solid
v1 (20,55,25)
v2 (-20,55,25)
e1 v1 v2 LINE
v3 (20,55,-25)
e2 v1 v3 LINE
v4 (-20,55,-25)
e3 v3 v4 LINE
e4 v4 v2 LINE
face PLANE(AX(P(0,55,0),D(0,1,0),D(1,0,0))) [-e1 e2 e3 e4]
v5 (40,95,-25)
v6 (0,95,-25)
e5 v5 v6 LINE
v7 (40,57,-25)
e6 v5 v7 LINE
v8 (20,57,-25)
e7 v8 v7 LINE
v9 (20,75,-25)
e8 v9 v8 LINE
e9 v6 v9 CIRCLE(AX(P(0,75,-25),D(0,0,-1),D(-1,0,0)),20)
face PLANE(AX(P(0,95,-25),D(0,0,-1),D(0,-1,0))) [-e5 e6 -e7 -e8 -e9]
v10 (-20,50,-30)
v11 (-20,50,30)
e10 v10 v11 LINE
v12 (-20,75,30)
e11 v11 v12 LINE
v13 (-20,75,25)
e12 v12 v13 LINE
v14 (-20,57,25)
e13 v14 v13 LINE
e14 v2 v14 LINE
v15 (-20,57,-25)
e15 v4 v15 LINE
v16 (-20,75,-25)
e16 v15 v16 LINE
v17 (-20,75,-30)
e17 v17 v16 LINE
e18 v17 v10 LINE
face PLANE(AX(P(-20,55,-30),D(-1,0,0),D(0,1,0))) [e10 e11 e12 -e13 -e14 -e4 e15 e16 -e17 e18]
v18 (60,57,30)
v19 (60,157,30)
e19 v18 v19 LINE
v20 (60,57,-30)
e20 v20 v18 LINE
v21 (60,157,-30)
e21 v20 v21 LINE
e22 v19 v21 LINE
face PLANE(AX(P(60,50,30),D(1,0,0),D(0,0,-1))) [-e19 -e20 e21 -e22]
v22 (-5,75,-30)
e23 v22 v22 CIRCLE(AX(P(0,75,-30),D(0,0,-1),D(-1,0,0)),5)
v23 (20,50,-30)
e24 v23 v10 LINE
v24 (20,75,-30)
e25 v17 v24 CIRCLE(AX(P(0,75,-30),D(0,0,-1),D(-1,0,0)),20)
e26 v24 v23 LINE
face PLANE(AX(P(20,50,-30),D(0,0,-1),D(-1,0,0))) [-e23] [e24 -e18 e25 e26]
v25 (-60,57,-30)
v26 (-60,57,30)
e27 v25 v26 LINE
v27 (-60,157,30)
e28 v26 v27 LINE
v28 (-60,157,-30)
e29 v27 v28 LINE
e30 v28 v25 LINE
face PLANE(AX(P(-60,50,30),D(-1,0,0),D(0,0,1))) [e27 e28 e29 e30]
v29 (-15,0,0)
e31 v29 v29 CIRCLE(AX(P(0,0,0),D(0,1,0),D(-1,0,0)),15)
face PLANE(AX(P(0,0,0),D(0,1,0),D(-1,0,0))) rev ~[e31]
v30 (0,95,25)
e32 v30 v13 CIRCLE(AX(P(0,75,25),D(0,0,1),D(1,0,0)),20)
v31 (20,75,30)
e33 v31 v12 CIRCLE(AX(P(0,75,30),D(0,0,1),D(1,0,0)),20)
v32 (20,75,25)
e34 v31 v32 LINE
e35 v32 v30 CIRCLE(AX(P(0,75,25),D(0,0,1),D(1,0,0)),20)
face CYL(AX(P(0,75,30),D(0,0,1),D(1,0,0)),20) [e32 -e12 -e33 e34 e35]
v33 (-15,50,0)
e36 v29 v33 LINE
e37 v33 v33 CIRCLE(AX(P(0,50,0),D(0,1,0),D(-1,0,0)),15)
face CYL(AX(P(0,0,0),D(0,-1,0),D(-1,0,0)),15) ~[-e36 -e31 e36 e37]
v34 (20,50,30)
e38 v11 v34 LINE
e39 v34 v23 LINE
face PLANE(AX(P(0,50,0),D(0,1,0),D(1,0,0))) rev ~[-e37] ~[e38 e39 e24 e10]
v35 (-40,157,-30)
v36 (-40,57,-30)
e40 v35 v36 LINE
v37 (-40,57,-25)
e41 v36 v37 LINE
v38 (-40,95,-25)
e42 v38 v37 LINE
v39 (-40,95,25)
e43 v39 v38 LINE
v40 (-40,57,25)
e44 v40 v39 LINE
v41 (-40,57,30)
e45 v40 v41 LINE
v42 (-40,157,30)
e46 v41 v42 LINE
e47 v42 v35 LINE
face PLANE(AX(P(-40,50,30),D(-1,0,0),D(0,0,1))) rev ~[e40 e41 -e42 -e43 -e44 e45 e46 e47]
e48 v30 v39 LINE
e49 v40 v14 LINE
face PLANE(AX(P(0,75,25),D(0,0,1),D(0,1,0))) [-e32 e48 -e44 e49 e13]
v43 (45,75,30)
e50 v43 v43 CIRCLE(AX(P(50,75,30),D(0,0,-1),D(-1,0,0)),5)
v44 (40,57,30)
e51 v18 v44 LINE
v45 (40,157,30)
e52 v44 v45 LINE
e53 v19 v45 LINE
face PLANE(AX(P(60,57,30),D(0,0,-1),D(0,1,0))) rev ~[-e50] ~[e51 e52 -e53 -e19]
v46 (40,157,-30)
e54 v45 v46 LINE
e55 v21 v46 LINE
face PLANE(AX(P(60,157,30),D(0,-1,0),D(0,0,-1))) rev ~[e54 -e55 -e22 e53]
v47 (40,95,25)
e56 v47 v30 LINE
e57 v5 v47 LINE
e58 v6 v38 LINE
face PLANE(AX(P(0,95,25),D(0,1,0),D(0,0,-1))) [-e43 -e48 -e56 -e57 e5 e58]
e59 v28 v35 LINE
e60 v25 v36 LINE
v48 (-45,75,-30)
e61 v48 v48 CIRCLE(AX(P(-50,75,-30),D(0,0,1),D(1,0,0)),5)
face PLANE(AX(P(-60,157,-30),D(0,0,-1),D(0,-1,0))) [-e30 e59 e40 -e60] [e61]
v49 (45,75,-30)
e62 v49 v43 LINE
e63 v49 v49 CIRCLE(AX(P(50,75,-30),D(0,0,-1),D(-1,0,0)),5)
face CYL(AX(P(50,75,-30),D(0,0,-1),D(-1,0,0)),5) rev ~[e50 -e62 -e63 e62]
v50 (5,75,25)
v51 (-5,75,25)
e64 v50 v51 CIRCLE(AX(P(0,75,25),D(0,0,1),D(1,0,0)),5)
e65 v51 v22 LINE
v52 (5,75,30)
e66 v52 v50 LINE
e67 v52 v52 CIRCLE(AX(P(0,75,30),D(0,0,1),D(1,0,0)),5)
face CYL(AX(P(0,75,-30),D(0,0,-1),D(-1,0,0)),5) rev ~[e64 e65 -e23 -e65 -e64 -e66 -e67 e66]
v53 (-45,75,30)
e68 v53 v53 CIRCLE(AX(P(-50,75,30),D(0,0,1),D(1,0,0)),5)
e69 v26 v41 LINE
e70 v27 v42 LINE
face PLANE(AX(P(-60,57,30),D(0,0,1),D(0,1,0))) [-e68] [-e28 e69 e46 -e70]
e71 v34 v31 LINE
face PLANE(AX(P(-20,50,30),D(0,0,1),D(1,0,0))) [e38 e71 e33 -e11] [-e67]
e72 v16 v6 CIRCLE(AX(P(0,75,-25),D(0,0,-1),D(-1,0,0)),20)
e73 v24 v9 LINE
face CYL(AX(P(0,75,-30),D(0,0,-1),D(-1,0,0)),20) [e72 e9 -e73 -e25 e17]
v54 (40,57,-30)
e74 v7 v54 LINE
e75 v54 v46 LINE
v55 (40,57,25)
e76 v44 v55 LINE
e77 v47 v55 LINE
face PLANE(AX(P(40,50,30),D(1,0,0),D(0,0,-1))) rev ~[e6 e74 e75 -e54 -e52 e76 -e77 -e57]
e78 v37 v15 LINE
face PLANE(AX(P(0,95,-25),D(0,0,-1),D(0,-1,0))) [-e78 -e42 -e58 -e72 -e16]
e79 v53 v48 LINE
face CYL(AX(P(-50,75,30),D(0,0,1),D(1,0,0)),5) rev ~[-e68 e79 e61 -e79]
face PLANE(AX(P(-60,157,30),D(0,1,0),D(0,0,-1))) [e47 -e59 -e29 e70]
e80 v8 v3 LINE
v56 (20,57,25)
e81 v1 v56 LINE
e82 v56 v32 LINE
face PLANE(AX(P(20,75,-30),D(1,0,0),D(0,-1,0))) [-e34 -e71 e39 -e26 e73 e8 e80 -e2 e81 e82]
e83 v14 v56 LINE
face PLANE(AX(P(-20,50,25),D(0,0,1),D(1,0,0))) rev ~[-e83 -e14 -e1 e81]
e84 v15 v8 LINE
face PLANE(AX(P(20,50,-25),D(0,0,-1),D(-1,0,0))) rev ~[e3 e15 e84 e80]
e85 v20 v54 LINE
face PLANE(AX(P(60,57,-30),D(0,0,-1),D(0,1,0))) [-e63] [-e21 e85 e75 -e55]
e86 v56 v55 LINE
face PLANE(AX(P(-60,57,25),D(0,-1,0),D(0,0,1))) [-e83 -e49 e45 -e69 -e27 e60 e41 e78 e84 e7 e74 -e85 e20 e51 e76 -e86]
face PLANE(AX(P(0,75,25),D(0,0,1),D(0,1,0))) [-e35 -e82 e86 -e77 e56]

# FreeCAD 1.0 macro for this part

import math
import FreeCAD as App
import Part
import Sketcher

V = App.Vector
Q = App.Units.Quantity


def add_polygon(sketch, points):
    """Adds a closed chain of lines whose ends are joined by coincident constraints."""
    first, n = sketch.GeometryCount, len(points)
    for a, b in zip(points, points[1:] + points[:1]):
        sketch.addGeometry(Part.LineSegment(App.Vector(*a, 0), App.Vector(*b, 0)), False)
    for i in range(n):
        sketch.addConstraint(Sketcher.Constraint("Coincident", first + i, 2, first + (i + 1) % n, 1))

doc = App.newDocument("Part")
body = doc.addObject("PartDesign::Body", "Body")

# Sketch on XZ plane
sketch1 = body.newObject("Sketcher::SketchObject", "Sketch")
sketch1.AttachmentSupport = (doc.getObject("XZ_Plane"), [""])
sketch1.MapMode = "FlatFace"
sketch1.addGeometry(Part.Circle(V(0, 0, 0), V(0, 0, 1), 15), False)
sketch1.addConstraint(Sketcher.Constraint("Coincident", 0, 3, -1, 1))
sketch1.addConstraint(Sketcher.Constraint("Diameter", 0, Q("30 mm")))
pad1 = body.newObject("PartDesign::Pad", "Pad")
pad1.Profile = sketch1
pad1.Length = 50
pad1.Reversed = True

# Sketch on XZ plane
sketch2 = body.newObject("Sketcher::SketchObject", "Sketch001")
sketch2.AttachmentSupport = (doc.getObject("XZ_Plane"), [""])
sketch2.MapMode = "FlatFace"
sketch2.AttachmentOffset = App.Placement(V(0, 0, -50), App.Rotation())
add_polygon(sketch2, [(20, 30), (20, -30), (-20, -30), (-20, 30)])  # lines 0-3
sketch2.addConstraint(Sketcher.Constraint("Vertical", 0))
sketch2.addConstraint(Sketcher.Constraint("Horizontal", 1))
sketch2.addConstraint(Sketcher.Constraint("Vertical", 2))
sketch2.addConstraint(Sketcher.Constraint("Horizontal", 3))
sketch2.addConstraint(Sketcher.Constraint("Symmetric", 0, 2, 2, 2, -1, 1))
sketch2.addConstraint(Sketcher.Constraint("DistanceX", 1, 2, 1, 1, Q("40 mm")))
sketch2.addConstraint(Sketcher.Constraint("DistanceY", 0, 2, 0, 1, Q("60 mm")))
pad2 = body.newObject("PartDesign::Pad", "Pad001")
pad2.Profile = sketch2
pad2.Length = 5
pad2.Reversed = True

# Sketch on XY plane
sketch3 = body.newObject("Sketcher::SketchObject", "Sketch002")
sketch3.AttachmentSupport = (doc.getObject("XY_Plane"), [""])
sketch3.MapMode = "FlatFace"
sketch3.AttachmentOffset = App.Placement(V(0, 0, 30), App.Rotation())
sketch3.addGeometry(Part.LineSegment(V(-20, 75, 0), V(-20, 55, 0)), False)
sketch3.addGeometry(Part.LineSegment(V(-20, 55, 0), V(20, 55, 0)), False)
sketch3.addGeometry(Part.LineSegment(V(20, 55, 0), V(20, 75, 0)), False)
sketch3.addGeometry(Part.ArcOfCircle(Part.Circle(V(0, 75, 0), V(0, 0, 1), 20), math.radians(0), math.radians(180)), False)
sketch3.addGeometry(Part.Circle(V(0, 75, 0), V(0, 0, 1), 5), False)
sketch3.addConstraint(Sketcher.Constraint("Coincident", 0, 2, 1, 1))
sketch3.addConstraint(Sketcher.Constraint("Coincident", 1, 2, 2, 1))
sketch3.addConstraint(Sketcher.Constraint("Tangent", 2, 2, 3, 1))
sketch3.addConstraint(Sketcher.Constraint("Tangent", 3, 2, 0, 1))
sketch3.addConstraint(Sketcher.Constraint("Vertical", 0))
sketch3.addConstraint(Sketcher.Constraint("Horizontal", 1))
sketch3.addConstraint(Sketcher.Constraint("Vertical", 2))
sketch3.addConstraint(Sketcher.Constraint("Coincident", 4, 3, 3, 3))
sketch3.addConstraint(Sketcher.Constraint("PointOnObject", 3, 3, -2))
sketch3.addConstraint(Sketcher.Constraint("Diameter", 4, Q("10 mm")))
sketch3.addConstraint(Sketcher.Constraint("Radius", 3, Q("20 mm")))
sketch3.addConstraint(Sketcher.Constraint("DistanceY", 0, 2, 0, 1, Q("20 mm")))
sketch3.addConstraint(Sketcher.Constraint("DistanceY", -1, 1, 3, 3, Q("75 mm")))
pad3 = body.newObject("PartDesign::Pad", "Pad002")
pad3.Profile = sketch3
pad3.Length = 5
pad3.Reversed = True

# Sketch on XY plane
sketch4 = body.newObject("Sketcher::SketchObject", "Sketch003")
sketch4.AttachmentSupport = (doc.getObject("XY_Plane"), [""])
sketch4.MapMode = "FlatFace"
sketch4.AttachmentOffset = App.Placement(V(0, 0, -30), App.Rotation())
sketch4.addGeometry(Part.LineSegment(V(-20, 55, 0), V(-20, 75, 0)), False)
sketch4.addGeometry(Part.ArcOfCircle(Part.Circle(V(0, 75, 0), V(0, 0, 1), 20), math.radians(0), math.radians(180)), False)
sketch4.addGeometry(Part.LineSegment(V(20, 75, 0), V(20, 55, 0)), False)
sketch4.addGeometry(Part.LineSegment(V(20, 55, 0), V(-20, 55, 0)), False)
sketch4.addGeometry(Part.Circle(V(0, 75, 0), V(0, 0, 1), 5), False)
sketch4.addConstraint(Sketcher.Constraint("Tangent", 0, 2, 1, 2))
sketch4.addConstraint(Sketcher.Constraint("Tangent", 1, 1, 2, 1))
sketch4.addConstraint(Sketcher.Constraint("Coincident", 2, 2, 3, 1))
sketch4.addConstraint(Sketcher.Constraint("Coincident", 3, 2, 0, 1))
sketch4.addConstraint(Sketcher.Constraint("Vertical", 0))
sketch4.addConstraint(Sketcher.Constraint("Vertical", 2))
sketch4.addConstraint(Sketcher.Constraint("Horizontal", 3))
sketch4.addConstraint(Sketcher.Constraint("Coincident", 4, 3, 1, 3))
sketch4.addConstraint(Sketcher.Constraint("PointOnObject", 1, 3, -2))
sketch4.addConstraint(Sketcher.Constraint("Diameter", 4, Q("10 mm")))
sketch4.addConstraint(Sketcher.Constraint("Radius", 1, Q("20 mm")))
sketch4.addConstraint(Sketcher.Constraint("DistanceY", 0, 1, 0, 2, Q("20 mm")))
sketch4.addConstraint(Sketcher.Constraint("DistanceY", -1, 1, 1, 3, Q("75 mm")))
pad4 = body.newObject("PartDesign::Pad", "Pad003")
pad4.Profile = sketch4
pad4.Length = 5

# Sketch on YZ plane
sketch5 = body.newObject("Sketcher::SketchObject", "Sketch004")
sketch5.AttachmentSupport = (doc.getObject("YZ_Plane"), [""])
sketch5.MapMode = "FlatFace"
add_polygon(sketch5, [(95, 25), (57, 25), (57, -25), (95, -25)])  # lines 0-3
sketch5.addConstraint(Sketcher.Constraint("Horizontal", 0))
sketch5.addConstraint(Sketcher.Constraint("Vertical", 1))
sketch5.addConstraint(Sketcher.Constraint("Horizontal", 2))
sketch5.addConstraint(Sketcher.Constraint("Vertical", 3))
sketch5.addConstraint(Sketcher.Constraint("DistanceX", 0, 2, 0, 1, Q("38 mm")))
sketch5.addConstraint(Sketcher.Constraint("DistanceY", 1, 2, 1, 1, Q("50 mm")))
sketch5.addConstraint(Sketcher.Constraint("DistanceX", -1, 1, 0, 2, Q("57 mm")))
sketch5.addConstraint(Sketcher.Constraint("DistanceY", -1, 1, 0, 2, Q("25 mm")))
pad5 = body.newObject("PartDesign::Pad", "Pad004")
pad5.Profile = sketch5
pad5.Length = 120
pad5.Midplane = True

# Sketch on XY plane
sketch6 = body.newObject("Sketcher::SketchObject", "Sketch005")
sketch6.AttachmentSupport = (doc.getObject("XY_Plane"), [""])
sketch6.MapMode = "FlatFace"
sketch6.AttachmentOffset = App.Placement(V(0, 0, -30), App.Rotation())
sketch6.addGeometry(Part.Circle(V(0, 75, 0), V(0, 0, 1), 5), False)
sketch6.addConstraint(Sketcher.Constraint("PointOnObject", 0, 3, -2))
sketch6.addConstraint(Sketcher.Constraint("Diameter", 0, Q("10 mm")))
sketch6.addConstraint(Sketcher.Constraint("DistanceY", -1, 1, 0, 3, Q("75 mm")))
pocket1 = body.newObject("PartDesign::Pocket", "Pocket")
pocket1.Profile = sketch6
pocket1.Length = 55
pocket1.Reversed = True

# Sketch on YZ plane
sketch7 = body.newObject("Sketcher::SketchObject", "Sketch006")
sketch7.AttachmentSupport = (doc.getObject("YZ_Plane"), [""])
sketch7.MapMode = "FlatFace"
sketch7.AttachmentOffset = App.Placement(V(0, 0, 60), App.Rotation())
add_polygon(sketch7, [(95, -25), (57, -25), (57, -30), (157, -30), (157, 30), (57, 30), (57, 25), (95, 25)])  # lines 0-7
sketch7.addConstraint(Sketcher.Constraint("Horizontal", 0))
sketch7.addConstraint(Sketcher.Constraint("Vertical", 1))
sketch7.addConstraint(Sketcher.Constraint("Horizontal", 2))
sketch7.addConstraint(Sketcher.Constraint("Vertical", 3))
sketch7.addConstraint(Sketcher.Constraint("Horizontal", 4))
sketch7.addConstraint(Sketcher.Constraint("Vertical", 5))
sketch7.addConstraint(Sketcher.Constraint("Horizontal", 6))
sketch7.addConstraint(Sketcher.Constraint("Vertical", 7))
sketch7.addConstraint(Sketcher.Constraint("Symmetric", 1, 2, 4, 2, -1))
sketch7.addConstraint(Sketcher.Constraint("Equal", 1, 5))
sketch7.addConstraint(Sketcher.Constraint("DistanceX", 2, 1, 2, 2, Q("100 mm")))
sketch7.addConstraint(Sketcher.Constraint("DistanceX", 0, 2, 0, 1, Q("38 mm")))
sketch7.addConstraint(Sketcher.Constraint("DistanceY", 1, 2, 1, 1, Q("5 mm")))
sketch7.addConstraint(Sketcher.Constraint("DistanceY", 3, 1, 3, 2, Q("60 mm")))
sketch7.addConstraint(Sketcher.Constraint("DistanceX", -1, 1, 0, 2, Q("57 mm")))
pad6 = body.newObject("PartDesign::Pad", "Pad005")
pad6.Profile = sketch7
pad6.Length = 20
pad6.Reversed = True

# Sketch on XY plane
sketch8 = body.newObject("Sketcher::SketchObject", "Sketch007")
sketch8.AttachmentSupport = (doc.getObject("XY_Plane"), [""])
sketch8.MapMode = "FlatFace"
sketch8.AttachmentOffset = App.Placement(V(0, 0, -30), App.Rotation())
sketch8.addGeometry(Part.Circle(V(50, 75, 0), V(0, 0, 1), 5), False)
sketch8.addConstraint(Sketcher.Constraint("Diameter", 0, Q("10 mm")))
sketch8.addConstraint(Sketcher.Constraint("DistanceX", -1, 1, 0, 3, Q("50 mm")))
sketch8.addConstraint(Sketcher.Constraint("DistanceY", -1, 1, 0, 3, Q("75 mm")))
pocket2 = body.newObject("PartDesign::Pocket", "Pocket001")
pocket2.Profile = sketch8
pocket2.Type = "UpToFirst"
pocket2.Reversed = True

# Sketch on YZ plane
sketch9 = body.newObject("Sketcher::SketchObject", "Sketch008")
sketch9.AttachmentSupport = (doc.getObject("YZ_Plane"), [""])
sketch9.MapMode = "FlatFace"
sketch9.AttachmentOffset = App.Placement(V(0, 0, -60), App.Rotation())
add_polygon(sketch9, [(157, 30), (157, -30), (57, -30), (57, -25), (95, -25), (95, 25), (57, 25), (57, 30)])  # lines 0-7
sketch9.addConstraint(Sketcher.Constraint("Vertical", 0))
sketch9.addConstraint(Sketcher.Constraint("Horizontal", 1))
sketch9.addConstraint(Sketcher.Constraint("Vertical", 2))
sketch9.addConstraint(Sketcher.Constraint("Horizontal", 3))
sketch9.addConstraint(Sketcher.Constraint("Vertical", 4))
sketch9.addConstraint(Sketcher.Constraint("Horizontal", 5))
sketch9.addConstraint(Sketcher.Constraint("Vertical", 6))
sketch9.addConstraint(Sketcher.Constraint("Horizontal", 7))
sketch9.addConstraint(Sketcher.Constraint("Symmetric", 2, 2, 5, 2, -1))
sketch9.addConstraint(Sketcher.Constraint("Equal", 2, 6))
sketch9.addConstraint(Sketcher.Constraint("DistanceX", 1, 2, 1, 1, Q("100 mm")))
sketch9.addConstraint(Sketcher.Constraint("DistanceX", 3, 1, 3, 2, Q("38 mm")))
sketch9.addConstraint(Sketcher.Constraint("DistanceY", 0, 2, 0, 1, Q("60 mm")))
sketch9.addConstraint(Sketcher.Constraint("DistanceY", 2, 1, 2, 2, Q("5 mm")))
sketch9.addConstraint(Sketcher.Constraint("DistanceX", -1, 1, 0, 2, Q("157 mm")))
pad7 = body.newObject("PartDesign::Pad", "Pad006")
pad7.Profile = sketch9
pad7.Length = 20

# Sketch on XY plane
sketch10 = body.newObject("Sketcher::SketchObject", "Sketch009")
sketch10.AttachmentSupport = (doc.getObject("XY_Plane"), [""])
sketch10.MapMode = "FlatFace"
sketch10.AttachmentOffset = App.Placement(V(0, 0, 30), App.Rotation())
sketch10.addGeometry(Part.Circle(V(-50, 75, 0), V(0, 0, 1), 5), False)
sketch10.addConstraint(Sketcher.Constraint("Diameter", 0, Q("10 mm")))
sketch10.addConstraint(Sketcher.Constraint("DistanceX", 0, 3, -1, 1, Q("50 mm")))
sketch10.addConstraint(Sketcher.Constraint("DistanceY", -1, 1, 0, 3, Q("75 mm")))
pocket3 = body.newObject("PartDesign::Pocket", "Pocket002")
pocket3.Profile = sketch10
pocket3.Type = "UpToFirst"

doc.recompute()
